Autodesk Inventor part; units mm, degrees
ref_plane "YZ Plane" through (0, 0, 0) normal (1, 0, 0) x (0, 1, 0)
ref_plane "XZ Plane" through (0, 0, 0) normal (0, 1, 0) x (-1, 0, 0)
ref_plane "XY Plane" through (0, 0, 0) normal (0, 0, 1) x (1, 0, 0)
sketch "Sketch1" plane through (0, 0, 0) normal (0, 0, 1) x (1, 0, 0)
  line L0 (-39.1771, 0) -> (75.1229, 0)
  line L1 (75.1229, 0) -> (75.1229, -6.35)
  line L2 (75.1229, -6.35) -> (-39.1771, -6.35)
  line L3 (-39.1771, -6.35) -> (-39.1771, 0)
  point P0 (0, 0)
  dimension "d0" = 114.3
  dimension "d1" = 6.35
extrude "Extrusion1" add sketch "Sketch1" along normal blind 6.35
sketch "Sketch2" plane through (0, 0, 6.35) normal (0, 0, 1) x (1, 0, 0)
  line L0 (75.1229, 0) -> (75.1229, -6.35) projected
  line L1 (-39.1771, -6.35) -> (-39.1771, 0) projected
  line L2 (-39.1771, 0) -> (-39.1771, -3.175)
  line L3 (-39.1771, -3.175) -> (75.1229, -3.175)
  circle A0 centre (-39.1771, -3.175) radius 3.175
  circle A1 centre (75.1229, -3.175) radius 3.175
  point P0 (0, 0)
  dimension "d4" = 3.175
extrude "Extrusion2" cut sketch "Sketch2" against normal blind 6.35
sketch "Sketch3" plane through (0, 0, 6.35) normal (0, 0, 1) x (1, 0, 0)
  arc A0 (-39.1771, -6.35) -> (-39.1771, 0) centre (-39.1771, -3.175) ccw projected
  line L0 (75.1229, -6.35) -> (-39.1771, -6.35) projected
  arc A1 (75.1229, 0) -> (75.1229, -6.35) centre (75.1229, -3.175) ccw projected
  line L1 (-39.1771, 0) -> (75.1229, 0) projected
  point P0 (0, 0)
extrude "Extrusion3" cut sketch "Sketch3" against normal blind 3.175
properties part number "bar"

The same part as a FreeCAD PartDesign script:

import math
import FreeCAD as App
import Part
import Sketcher
Q = App.Units.Quantity

doc = App.newDocument("Part")
params = doc.addObject("Spreadsheet::Sheet", "Params")
for row, (alias, value) in enumerate([
    ("sketch1_width", "4.5 in"),
    ("sketch1_height", "0.25 in"),
    ("pad1_length", "0.25 in"),
    ("sketch2_diameter", "0.25 in"),
    ("pocket1_length", "0.25 in"),
    ("sketch3_width", "4.5 in"),
    ("sketch3_radius", "0.125 in"),
    ("pocket2_length", "0.125 in"),
], start=1):
    params.set(f"A{row}", alias)
    params.set(f"B{row}", "=" + value)
    params.setAlias(f"B{row}", alias)

body = doc.addObject("PartDesign::Body", "Body")

# Sketch on XY plane
sketch1 = body.newObject("Sketcher::SketchObject", "Sketch")
sketch1.AttachmentSupport = (doc.getObject("XY_Plane"), [""])
sketch1.MapMode = "FlatFace"
sketch1.addGeometry(Part.LineSegment(App.Vector(75, 0, 0), App.Vector(-39, 0, 0)), False)
sketch1.addGeometry(Part.LineSegment(App.Vector(-39, 0, 0), App.Vector(-39, -6, 0)), False)
sketch1.addGeometry(Part.LineSegment(App.Vector(-39, -6, 0), App.Vector(75, -6, 0)), False)
sketch1.addGeometry(Part.LineSegment(App.Vector(75, -6, 0), App.Vector(75, 0, 0)), False)
sketch1.addConstraint(Sketcher.Constraint("Coincident", 0, 2, 1, 1))
sketch1.addConstraint(Sketcher.Constraint("Coincident", 1, 2, 2, 1))
sketch1.addConstraint(Sketcher.Constraint("Coincident", 2, 2, 3, 1))
sketch1.addConstraint(Sketcher.Constraint("Coincident", 3, 2, 0, 1))
sketch1.addConstraint(Sketcher.Constraint("Horizontal", 0))
sketch1.addConstraint(Sketcher.Constraint("Vertical", 1))
sketch1.addConstraint(Sketcher.Constraint("Horizontal", 2))
sketch1.addConstraint(Sketcher.Constraint("Vertical", 3))
sketch1.addConstraint(Sketcher.Constraint("PointOnObject", 0, 2, -1))
sketch1.addConstraint(Sketcher.Constraint("DistanceX", 0, 2, 0, 1, Q("4.5 in")))
sketch1.addConstraint(Sketcher.Constraint("DistanceY", 1, 2, 1, 1, Q("0.25 in")))
sketch1.addConstraint(Sketcher.Constraint("DistanceX", 0, 2, -1, 1, Q("1.5424 in")))
sketch1.setExpression("Constraints[9]", "Params.sketch1_width")
sketch1.setExpression("Constraints[10]", "Params.sketch1_height")
pad1 = body.newObject("PartDesign::Pad", "Pad")
pad1.Profile = sketch1
pad1.setExpression("Length", "Params.pad1_length")

# Sketch on XY plane
sketch2 = body.newObject("Sketcher::SketchObject", "Sketch001")
sketch2.AttachmentSupport = (doc.getObject("XY_Plane"), [""])
sketch2.MapMode = "FlatFace"
sketch2.AttachmentOffset = App.Placement(App.Vector(0, 0, 0.25 * 25.4), App.Rotation())
sketch2.addGeometry(Part.Circle(App.Vector(75.1, -3.2, 0), App.Vector(0, 0, 1), 3.2), False)
sketch2.addGeometry(Part.Circle(App.Vector(-39.2, -3.2, 0), App.Vector(0, 0, 1), 3.2), False)
sketch2.addConstraint(Sketcher.Constraint("Equal", 0, 1))
sketch2.addConstraint(Sketcher.Constraint("Horizontal", 0, 3, 1, 3))
sketch2.addConstraint(Sketcher.Constraint("Diameter", 0, Q("0.25 in")))
sketch2.addConstraint(Sketcher.Constraint("DistanceY", 0, 3, -1, 1, Q("0.125 in")))
sketch2.addConstraint(Sketcher.Constraint("DistanceX", 1, 3, 0, 3, Q("4.5 in")))
sketch2.addConstraint(Sketcher.Constraint("DistanceX", -1, 1, 0, 3, Q("2.9576 in")))
sketch2.setExpression("Constraints[2]", "Params.sketch2_diameter")
pocket1 = body.newObject("PartDesign::Pocket", "Pocket")
pocket1.Profile = sketch2
pocket1.setExpression("Length", "Params.pocket1_length")

# Sketch on XY plane
sketch3 = body.newObject("Sketcher::SketchObject", "Sketch002")
sketch3.AttachmentSupport = (doc.getObject("XY_Plane"), [""])
sketch3.MapMode = "FlatFace"
sketch3.AttachmentOffset = App.Placement(App.Vector(0, 0, 0.25 * 25.4), App.Rotation())
sketch3.addGeometry(Part.ArcOfCircle(Part.Circle(App.Vector(-39.2, -3.2, 0), App.Vector(0, 0, 1), 3.2), math.radians(-90), math.radians(90)), False)
sketch3.addGeometry(Part.LineSegment(App.Vector(-39.2, -6.3, 0), App.Vector(75.1, -6.3, 0)), False)
sketch3.addGeometry(Part.ArcOfCircle(Part.Circle(App.Vector(75.1, -3.2, 0), App.Vector(0, 0, 1), 3.2), math.radians(90), math.radians(270)), False)
sketch3.addGeometry(Part.LineSegment(App.Vector(75.1, 0, 0), App.Vector(-39.2, 0, 0)), False)
sketch3.addConstraint(Sketcher.Constraint("Tangent", 0, 1, 1, 1))
sketch3.addConstraint(Sketcher.Constraint("Tangent", 1, 2, 2, 2))
sketch3.addConstraint(Sketcher.Constraint("Tangent", 2, 1, 3, 1))
sketch3.addConstraint(Sketcher.Constraint("Tangent", 3, 2, 0, 2))
sketch3.addConstraint(Sketcher.Constraint("Horizontal", 1))
sketch3.addConstraint(Sketcher.Constraint("Horizontal", 3))
sketch3.addConstraint(Sketcher.Constraint("PointOnObject", 2, 1, -1))
sketch3.addConstraint(Sketcher.Constraint("DistanceX", 1, 1, 1, 2, Q("4.5 in")))
sketch3.addConstraint(Sketcher.Constraint("Radius", 0, Q("0.125 in")))
sketch3.addConstraint(Sketcher.Constraint("DistanceX", 0, 3, -1, 1, Q("1.5424 in")))
sketch3.setExpression("Constraints[7]", "Params.sketch3_width")
sketch3.setExpression("Constraints[8]", "Params.sketch3_radius")
pocket2 = body.newObject("PartDesign::Pocket", "Pocket001")
pocket2.Profile = sketch3
pocket2.setExpression("Length", "Params.pocket2_length")

doc.recompute()
